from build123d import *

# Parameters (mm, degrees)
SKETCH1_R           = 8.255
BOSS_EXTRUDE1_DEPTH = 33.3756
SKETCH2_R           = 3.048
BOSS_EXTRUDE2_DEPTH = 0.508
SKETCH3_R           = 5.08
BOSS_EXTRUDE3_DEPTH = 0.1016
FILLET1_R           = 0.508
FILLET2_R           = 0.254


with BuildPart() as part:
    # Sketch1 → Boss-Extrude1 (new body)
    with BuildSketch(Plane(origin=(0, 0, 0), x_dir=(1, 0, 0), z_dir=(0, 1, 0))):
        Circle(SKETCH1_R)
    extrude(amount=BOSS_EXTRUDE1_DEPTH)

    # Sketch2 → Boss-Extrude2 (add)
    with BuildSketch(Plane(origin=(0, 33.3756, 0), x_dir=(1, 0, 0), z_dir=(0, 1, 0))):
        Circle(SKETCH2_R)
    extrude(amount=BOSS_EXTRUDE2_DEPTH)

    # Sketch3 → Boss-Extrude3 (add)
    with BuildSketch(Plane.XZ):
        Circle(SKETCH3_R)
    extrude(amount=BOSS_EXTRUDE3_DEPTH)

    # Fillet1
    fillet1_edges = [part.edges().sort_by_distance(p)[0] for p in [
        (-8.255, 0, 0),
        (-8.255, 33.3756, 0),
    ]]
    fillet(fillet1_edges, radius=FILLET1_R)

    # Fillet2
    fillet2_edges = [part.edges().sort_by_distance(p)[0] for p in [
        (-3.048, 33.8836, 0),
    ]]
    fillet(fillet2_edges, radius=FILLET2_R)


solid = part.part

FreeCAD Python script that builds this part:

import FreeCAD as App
import Part
import Sketcher

V = App.Vector
Q = App.Units.Quantity


def edges_at(feature, points):
    """Names of the edges that pass closest to the given points."""
    edges = feature.Shape.Edges
    near = lambda p: min(range(len(edges)), key=lambda i: edges[i].distToShape(Part.Vertex(*p))[0])
    return sorted({f"Edge{near(p) + 1}" for p in points})

doc = App.newDocument("Part")
body = doc.addObject("PartDesign::Body", "Body")

# Sketch on XZ plane
sketch1 = doc.addObject("Sketcher::SketchObject", "Sketch")
body.addObject(sketch1)
sketch1.AttachmentSupport = (doc.XZ_Plane, [""])
sketch1.MapMode = "FlatFace"
sketch1.addGeometry(Part.Circle(V(0, 0, 0), V(0, 0, 1), 8.255), False)
sketch1.addConstraint([
    Sketcher.Constraint("Coincident", 0, 3, -1, 1),
    Sketcher.Constraint("Diameter", 0, Q("0.65 in")),
])
pad1 = doc.addObject("PartDesign::Pad", "Pad")
body.addObject(pad1)
pad1.Profile = sketch1
pad1.Length = Q("1.314 in")
pad1.Reversed = True

# Sketch on XZ plane
sketch2 = doc.addObject("Sketcher::SketchObject", "Sketch001")
body.addObject(sketch2)
sketch2.AttachmentSupport = (doc.XZ_Plane, [""])
sketch2.MapMode = "FlatFace"
sketch2.AttachmentOffset = App.Placement(V(0, 0, -1.314 * 25.4), App.Rotation())
sketch2.addGeometry(Part.Circle(V(0, 0, 0), V(0, 0, 1), 3.048), False)
sketch2.addConstraint([
    Sketcher.Constraint("Coincident", 0, 3, -1, 1),
    Sketcher.Constraint("Diameter", 0, Q("0.24 in")),
])
pad2 = doc.addObject("PartDesign::Pad", "Pad001")
body.addObject(pad2)
pad2.Profile = sketch2
pad2.Length = Q("0.02 in")
pad2.Reversed = True

# Sketch on XZ plane
sketch3 = doc.addObject("Sketcher::SketchObject", "Sketch002")
body.addObject(sketch3)
sketch3.AttachmentSupport = (doc.XZ_Plane, [""])
sketch3.MapMode = "FlatFace"
sketch3.addGeometry(Part.Circle(V(0, 0, 0), V(0, 0, 1), 5.08), False)
sketch3.addConstraint([
    Sketcher.Constraint("Coincident", 0, 3, -1, 1),
    Sketcher.Constraint("Diameter", 0, Q("0.4 in")),
])
pad3 = doc.addObject("PartDesign::Pad", "Pad002")
body.addObject(pad3)
pad3.Profile = sketch3
pad3.Length = Q("0.004 in")
doc.recompute()

fillet = doc.addObject("PartDesign::Fillet", "Fillet")
body.addObject(fillet)
fillet.Base = (pad3, edges_at(pad3, [(-8.255, 0, 0), (-8.255, 33.376, 0)]))
fillet.Radius = Q("0.02 in")
doc.recompute()

fillet2 = doc.addObject("PartDesign::Fillet", "Fillet001")
body.addObject(fillet2)
fillet2.Base = (fillet, edges_at(fillet, [(-3.048, 33.884, 0)]))
fillet2.Radius = Q("0.01 in")

doc.recompute()
